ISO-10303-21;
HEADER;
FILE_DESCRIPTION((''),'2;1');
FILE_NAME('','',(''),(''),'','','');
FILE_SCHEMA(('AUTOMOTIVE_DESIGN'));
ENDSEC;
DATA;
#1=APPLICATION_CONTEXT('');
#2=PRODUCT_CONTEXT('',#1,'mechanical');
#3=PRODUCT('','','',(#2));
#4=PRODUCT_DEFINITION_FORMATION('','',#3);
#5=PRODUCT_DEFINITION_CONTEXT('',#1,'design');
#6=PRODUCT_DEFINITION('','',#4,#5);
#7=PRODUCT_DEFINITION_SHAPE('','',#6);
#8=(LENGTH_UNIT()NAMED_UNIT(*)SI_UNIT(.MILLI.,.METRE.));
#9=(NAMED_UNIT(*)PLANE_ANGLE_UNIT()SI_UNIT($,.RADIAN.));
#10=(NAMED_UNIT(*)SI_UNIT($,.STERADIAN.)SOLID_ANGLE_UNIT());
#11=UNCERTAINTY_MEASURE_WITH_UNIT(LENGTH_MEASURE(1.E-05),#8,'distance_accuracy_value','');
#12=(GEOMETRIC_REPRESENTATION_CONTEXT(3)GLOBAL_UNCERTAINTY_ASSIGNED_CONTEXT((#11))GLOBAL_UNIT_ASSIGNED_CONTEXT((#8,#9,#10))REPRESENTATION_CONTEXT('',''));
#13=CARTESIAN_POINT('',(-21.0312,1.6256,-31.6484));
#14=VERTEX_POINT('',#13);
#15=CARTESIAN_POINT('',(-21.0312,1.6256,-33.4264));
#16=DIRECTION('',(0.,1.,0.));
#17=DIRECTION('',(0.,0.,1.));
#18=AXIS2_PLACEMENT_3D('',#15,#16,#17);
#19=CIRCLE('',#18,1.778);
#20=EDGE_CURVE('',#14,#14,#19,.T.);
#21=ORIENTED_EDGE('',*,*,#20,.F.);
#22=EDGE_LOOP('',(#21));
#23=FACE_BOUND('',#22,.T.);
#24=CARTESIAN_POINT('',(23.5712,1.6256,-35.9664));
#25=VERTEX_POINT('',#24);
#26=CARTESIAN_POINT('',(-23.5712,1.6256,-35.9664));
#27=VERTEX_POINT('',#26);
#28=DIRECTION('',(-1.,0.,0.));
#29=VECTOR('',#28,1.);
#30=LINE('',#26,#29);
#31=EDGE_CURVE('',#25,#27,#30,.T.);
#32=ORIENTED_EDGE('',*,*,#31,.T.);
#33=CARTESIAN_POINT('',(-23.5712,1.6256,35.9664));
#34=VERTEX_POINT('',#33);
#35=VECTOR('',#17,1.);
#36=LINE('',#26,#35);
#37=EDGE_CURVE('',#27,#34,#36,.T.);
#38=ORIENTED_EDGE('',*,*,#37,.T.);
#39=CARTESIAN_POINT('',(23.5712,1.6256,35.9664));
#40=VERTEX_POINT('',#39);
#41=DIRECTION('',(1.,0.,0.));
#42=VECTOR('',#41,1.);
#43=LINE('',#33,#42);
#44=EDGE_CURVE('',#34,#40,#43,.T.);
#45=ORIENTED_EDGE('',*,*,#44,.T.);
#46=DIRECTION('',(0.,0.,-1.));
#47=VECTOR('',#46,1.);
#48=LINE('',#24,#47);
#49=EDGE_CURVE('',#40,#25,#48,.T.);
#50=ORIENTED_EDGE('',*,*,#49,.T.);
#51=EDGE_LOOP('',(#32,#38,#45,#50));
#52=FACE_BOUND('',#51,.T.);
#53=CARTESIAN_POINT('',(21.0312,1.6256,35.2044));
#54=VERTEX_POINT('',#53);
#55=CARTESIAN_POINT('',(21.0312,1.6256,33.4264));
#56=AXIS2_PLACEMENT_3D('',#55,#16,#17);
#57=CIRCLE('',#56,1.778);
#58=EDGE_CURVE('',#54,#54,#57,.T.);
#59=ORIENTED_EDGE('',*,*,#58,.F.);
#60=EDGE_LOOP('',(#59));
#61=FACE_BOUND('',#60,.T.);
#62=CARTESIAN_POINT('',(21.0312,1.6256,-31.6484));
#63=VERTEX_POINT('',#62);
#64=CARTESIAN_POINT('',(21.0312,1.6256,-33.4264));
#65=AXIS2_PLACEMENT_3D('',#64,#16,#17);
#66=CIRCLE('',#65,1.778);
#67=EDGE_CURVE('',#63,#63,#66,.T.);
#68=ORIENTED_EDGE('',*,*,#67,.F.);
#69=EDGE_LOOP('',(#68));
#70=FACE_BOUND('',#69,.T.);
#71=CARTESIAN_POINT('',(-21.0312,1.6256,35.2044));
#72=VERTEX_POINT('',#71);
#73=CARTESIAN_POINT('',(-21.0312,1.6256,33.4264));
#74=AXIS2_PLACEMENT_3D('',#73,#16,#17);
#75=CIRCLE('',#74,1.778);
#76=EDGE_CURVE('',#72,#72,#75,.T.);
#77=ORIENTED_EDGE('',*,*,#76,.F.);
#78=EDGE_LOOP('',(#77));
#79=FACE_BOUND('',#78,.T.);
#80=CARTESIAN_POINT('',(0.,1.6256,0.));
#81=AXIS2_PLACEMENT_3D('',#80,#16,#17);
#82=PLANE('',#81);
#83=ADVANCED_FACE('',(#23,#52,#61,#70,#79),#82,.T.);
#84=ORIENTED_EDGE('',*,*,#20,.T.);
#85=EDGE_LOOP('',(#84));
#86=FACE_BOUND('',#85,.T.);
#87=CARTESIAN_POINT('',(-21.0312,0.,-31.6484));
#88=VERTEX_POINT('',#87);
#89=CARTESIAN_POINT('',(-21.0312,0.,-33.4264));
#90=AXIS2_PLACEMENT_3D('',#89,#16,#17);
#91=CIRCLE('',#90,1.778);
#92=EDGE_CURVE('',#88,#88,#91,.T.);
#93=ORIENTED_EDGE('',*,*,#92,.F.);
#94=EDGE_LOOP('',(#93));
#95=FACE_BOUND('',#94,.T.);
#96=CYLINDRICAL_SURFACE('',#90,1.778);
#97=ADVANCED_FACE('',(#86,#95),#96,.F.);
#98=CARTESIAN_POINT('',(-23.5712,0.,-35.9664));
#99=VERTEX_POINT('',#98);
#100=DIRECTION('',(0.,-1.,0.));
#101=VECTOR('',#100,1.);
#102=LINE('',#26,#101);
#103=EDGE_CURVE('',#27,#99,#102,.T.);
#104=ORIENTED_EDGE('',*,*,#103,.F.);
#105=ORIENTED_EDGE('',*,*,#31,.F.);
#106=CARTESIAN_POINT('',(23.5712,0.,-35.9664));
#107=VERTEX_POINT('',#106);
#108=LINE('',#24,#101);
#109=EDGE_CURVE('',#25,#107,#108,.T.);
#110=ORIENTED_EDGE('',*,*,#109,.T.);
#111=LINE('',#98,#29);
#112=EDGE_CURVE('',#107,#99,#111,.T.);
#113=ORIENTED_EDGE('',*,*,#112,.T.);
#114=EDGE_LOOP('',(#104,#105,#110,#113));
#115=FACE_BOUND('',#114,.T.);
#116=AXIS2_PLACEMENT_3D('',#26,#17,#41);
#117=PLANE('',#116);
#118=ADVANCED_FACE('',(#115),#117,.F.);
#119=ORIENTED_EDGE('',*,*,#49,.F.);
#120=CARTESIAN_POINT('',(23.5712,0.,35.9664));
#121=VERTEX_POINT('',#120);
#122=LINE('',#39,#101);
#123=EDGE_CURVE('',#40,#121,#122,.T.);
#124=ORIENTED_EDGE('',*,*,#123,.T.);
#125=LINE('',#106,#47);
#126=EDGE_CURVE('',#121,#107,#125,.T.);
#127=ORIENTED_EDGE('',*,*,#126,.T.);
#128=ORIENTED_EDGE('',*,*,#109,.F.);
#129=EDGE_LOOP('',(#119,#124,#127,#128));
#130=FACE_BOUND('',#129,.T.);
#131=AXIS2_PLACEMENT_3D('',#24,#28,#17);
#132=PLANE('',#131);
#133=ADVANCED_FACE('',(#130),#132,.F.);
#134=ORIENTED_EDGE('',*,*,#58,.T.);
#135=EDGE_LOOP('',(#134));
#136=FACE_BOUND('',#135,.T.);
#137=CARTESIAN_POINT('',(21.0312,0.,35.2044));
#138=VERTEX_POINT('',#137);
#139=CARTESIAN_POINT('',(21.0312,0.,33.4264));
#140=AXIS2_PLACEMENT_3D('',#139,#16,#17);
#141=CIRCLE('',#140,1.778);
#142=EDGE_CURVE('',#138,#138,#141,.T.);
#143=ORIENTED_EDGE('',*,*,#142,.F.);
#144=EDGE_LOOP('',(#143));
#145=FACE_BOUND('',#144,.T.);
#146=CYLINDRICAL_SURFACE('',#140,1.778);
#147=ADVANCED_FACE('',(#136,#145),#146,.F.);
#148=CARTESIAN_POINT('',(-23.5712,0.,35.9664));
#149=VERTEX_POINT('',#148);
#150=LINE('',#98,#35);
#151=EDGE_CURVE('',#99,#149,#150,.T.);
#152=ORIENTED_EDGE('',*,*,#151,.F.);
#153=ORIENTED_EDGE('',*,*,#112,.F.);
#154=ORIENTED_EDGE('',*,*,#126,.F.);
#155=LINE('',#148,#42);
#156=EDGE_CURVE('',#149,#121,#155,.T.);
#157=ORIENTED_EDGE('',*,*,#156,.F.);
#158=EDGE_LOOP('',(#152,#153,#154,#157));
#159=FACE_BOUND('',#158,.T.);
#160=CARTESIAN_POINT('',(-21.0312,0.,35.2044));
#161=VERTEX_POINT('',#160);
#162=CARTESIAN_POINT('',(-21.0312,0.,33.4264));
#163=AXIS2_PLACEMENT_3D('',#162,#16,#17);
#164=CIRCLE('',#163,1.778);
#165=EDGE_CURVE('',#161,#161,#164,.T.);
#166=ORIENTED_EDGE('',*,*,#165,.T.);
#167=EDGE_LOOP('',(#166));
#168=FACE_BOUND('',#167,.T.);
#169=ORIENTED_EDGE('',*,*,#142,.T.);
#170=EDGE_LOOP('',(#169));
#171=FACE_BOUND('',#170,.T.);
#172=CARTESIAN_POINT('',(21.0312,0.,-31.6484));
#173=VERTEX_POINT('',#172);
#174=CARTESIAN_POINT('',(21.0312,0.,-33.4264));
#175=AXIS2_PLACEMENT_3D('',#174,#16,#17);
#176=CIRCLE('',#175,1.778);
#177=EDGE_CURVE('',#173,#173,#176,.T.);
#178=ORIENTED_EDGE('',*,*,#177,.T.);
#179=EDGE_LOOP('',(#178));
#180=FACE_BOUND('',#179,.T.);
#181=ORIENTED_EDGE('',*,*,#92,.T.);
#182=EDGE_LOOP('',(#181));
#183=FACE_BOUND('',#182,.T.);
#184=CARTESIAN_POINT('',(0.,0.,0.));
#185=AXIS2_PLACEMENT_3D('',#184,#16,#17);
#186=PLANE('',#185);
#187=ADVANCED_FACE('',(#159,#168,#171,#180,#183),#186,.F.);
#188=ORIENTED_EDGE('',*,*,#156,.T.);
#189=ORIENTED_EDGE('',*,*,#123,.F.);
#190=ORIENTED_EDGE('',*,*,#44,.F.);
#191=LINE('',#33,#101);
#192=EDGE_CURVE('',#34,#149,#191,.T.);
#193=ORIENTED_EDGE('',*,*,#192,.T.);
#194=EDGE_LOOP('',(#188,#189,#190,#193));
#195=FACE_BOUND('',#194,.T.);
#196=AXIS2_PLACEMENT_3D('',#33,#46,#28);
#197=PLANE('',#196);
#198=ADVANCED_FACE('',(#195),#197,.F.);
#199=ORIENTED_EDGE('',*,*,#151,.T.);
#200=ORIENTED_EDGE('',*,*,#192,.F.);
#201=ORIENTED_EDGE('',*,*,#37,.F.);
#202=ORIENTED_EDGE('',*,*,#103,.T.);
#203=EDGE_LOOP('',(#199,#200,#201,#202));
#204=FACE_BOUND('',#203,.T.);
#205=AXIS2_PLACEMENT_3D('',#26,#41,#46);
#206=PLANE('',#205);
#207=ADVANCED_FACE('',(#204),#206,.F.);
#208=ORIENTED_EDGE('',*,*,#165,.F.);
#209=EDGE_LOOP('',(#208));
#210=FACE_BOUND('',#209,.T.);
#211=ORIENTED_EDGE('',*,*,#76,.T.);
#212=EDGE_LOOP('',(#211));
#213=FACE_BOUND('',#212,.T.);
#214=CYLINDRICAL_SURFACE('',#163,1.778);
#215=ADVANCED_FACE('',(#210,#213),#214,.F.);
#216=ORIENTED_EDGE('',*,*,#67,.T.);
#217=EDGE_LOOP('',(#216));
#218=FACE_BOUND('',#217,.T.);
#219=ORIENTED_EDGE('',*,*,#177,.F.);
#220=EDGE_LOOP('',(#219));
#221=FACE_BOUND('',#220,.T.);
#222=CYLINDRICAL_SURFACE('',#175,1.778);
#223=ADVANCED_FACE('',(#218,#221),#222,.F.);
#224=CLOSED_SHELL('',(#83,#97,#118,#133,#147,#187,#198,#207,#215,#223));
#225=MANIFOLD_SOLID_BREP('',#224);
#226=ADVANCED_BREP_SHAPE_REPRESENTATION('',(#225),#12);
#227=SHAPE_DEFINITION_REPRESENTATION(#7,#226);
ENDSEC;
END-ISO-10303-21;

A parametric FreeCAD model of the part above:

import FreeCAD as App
import Part
import Sketcher
Q = App.Units.Quantity

doc = App.newDocument("Part")
body = doc.addObject("PartDesign::Body", "Body")

# Sketch on XZ plane
sketch1 = body.newObject("Sketcher::SketchObject", "Sketch")
sketch1.AttachmentSupport = (doc.getObject("XZ_Plane"), [""])
sketch1.MapMode = "FlatFace"
sketch1.addGeometry([
    Part.LineSegment(App.Vector(-24, -36, 0), App.Vector(-24, 36, 0)),
    Part.LineSegment(App.Vector(-24, 36, 0), App.Vector(24, 36, 0)),
    Part.LineSegment(App.Vector(24, 36, 0), App.Vector(24, -36, 0)),
    Part.LineSegment(App.Vector(24, -36, 0), App.Vector(-24, -36, 0)),
], False)
sketch1.addConstraint([
    Sketcher.Constraint("Coincident", 0, 2, 1, 1),
    Sketcher.Constraint("Coincident", 1, 2, 2, 1),
    Sketcher.Constraint("Coincident", 2, 2, 3, 1),
    Sketcher.Constraint("Coincident", 3, 2, 0, 1),
    Sketcher.Constraint("Vertical", 0),
    Sketcher.Constraint("Horizontal", 1),
    Sketcher.Constraint("Vertical", 2),
    Sketcher.Constraint("Horizontal", 3),
    Sketcher.Constraint("Symmetric", 0, 2, 2, 2, -1, 1),
    Sketcher.Constraint("DistanceX", 1, 1, 1, 2, Q("1.856 in")),
    Sketcher.Constraint("DistanceY", 0, 1, 0, 2, Q("2.832 in")),
])
pad1 = body.newObject("PartDesign::Pad", "Pad")
pad1.Profile = sketch1
pad1.Length = Q("0.064 in")
pad1.Reversed = True

# Sketch on XZ plane
sketch2 = body.newObject("Sketcher::SketchObject", "Sketch001")
sketch2.AttachmentSupport = (doc.getObject("XZ_Plane"), [""])
sketch2.MapMode = "FlatFace"
sketch2.AttachmentOffset = App.Placement(App.Vector(0, 0, -0.064 * 25.4), App.Rotation())
sketch2.addGeometry([
    Part.Circle(App.Vector(-21, -33.4, 0), App.Vector(0, 0, 1), 1.8),
    Part.Circle(App.Vector(21, -33.4, 0), App.Vector(0, 0, 1), 1.8),
    Part.Circle(App.Vector(-21, 33.4, 0), App.Vector(0, 0, 1), 1.8),
    Part.Circle(App.Vector(21, 33.4, 0), App.Vector(0, 0, 1), 1.8),
], False)
sketch2.addConstraint([
    Sketcher.Constraint("Equal", 0, 1),
    Sketcher.Constraint("Equal", 1, 2),
    Sketcher.Constraint("Equal", 2, 3),
    Sketcher.Constraint("Symmetric", 1, 3, 2, 3, -1, 1),
    Sketcher.Constraint("Symmetric", 0, 3, 3, 3, -1, 1),
    Sketcher.Constraint("Symmetric", 0, 3, 1, 3, -2),
    Sketcher.Constraint("Diameter", 0, Q("0.14 in")),
    Sketcher.Constraint("DistanceX", 0, 3, -1, 1, Q("0.828 in")),
    Sketcher.Constraint("DistanceY", 0, 3, -1, 1, Q("1.316 in")),
])
pocket1 = body.newObject("PartDesign::Pocket", "Pocket")
pocket1.Profile = sketch2
pocket1.Length = Q("0.064 in")
pocket1.Reversed = True

doc.recompute()
